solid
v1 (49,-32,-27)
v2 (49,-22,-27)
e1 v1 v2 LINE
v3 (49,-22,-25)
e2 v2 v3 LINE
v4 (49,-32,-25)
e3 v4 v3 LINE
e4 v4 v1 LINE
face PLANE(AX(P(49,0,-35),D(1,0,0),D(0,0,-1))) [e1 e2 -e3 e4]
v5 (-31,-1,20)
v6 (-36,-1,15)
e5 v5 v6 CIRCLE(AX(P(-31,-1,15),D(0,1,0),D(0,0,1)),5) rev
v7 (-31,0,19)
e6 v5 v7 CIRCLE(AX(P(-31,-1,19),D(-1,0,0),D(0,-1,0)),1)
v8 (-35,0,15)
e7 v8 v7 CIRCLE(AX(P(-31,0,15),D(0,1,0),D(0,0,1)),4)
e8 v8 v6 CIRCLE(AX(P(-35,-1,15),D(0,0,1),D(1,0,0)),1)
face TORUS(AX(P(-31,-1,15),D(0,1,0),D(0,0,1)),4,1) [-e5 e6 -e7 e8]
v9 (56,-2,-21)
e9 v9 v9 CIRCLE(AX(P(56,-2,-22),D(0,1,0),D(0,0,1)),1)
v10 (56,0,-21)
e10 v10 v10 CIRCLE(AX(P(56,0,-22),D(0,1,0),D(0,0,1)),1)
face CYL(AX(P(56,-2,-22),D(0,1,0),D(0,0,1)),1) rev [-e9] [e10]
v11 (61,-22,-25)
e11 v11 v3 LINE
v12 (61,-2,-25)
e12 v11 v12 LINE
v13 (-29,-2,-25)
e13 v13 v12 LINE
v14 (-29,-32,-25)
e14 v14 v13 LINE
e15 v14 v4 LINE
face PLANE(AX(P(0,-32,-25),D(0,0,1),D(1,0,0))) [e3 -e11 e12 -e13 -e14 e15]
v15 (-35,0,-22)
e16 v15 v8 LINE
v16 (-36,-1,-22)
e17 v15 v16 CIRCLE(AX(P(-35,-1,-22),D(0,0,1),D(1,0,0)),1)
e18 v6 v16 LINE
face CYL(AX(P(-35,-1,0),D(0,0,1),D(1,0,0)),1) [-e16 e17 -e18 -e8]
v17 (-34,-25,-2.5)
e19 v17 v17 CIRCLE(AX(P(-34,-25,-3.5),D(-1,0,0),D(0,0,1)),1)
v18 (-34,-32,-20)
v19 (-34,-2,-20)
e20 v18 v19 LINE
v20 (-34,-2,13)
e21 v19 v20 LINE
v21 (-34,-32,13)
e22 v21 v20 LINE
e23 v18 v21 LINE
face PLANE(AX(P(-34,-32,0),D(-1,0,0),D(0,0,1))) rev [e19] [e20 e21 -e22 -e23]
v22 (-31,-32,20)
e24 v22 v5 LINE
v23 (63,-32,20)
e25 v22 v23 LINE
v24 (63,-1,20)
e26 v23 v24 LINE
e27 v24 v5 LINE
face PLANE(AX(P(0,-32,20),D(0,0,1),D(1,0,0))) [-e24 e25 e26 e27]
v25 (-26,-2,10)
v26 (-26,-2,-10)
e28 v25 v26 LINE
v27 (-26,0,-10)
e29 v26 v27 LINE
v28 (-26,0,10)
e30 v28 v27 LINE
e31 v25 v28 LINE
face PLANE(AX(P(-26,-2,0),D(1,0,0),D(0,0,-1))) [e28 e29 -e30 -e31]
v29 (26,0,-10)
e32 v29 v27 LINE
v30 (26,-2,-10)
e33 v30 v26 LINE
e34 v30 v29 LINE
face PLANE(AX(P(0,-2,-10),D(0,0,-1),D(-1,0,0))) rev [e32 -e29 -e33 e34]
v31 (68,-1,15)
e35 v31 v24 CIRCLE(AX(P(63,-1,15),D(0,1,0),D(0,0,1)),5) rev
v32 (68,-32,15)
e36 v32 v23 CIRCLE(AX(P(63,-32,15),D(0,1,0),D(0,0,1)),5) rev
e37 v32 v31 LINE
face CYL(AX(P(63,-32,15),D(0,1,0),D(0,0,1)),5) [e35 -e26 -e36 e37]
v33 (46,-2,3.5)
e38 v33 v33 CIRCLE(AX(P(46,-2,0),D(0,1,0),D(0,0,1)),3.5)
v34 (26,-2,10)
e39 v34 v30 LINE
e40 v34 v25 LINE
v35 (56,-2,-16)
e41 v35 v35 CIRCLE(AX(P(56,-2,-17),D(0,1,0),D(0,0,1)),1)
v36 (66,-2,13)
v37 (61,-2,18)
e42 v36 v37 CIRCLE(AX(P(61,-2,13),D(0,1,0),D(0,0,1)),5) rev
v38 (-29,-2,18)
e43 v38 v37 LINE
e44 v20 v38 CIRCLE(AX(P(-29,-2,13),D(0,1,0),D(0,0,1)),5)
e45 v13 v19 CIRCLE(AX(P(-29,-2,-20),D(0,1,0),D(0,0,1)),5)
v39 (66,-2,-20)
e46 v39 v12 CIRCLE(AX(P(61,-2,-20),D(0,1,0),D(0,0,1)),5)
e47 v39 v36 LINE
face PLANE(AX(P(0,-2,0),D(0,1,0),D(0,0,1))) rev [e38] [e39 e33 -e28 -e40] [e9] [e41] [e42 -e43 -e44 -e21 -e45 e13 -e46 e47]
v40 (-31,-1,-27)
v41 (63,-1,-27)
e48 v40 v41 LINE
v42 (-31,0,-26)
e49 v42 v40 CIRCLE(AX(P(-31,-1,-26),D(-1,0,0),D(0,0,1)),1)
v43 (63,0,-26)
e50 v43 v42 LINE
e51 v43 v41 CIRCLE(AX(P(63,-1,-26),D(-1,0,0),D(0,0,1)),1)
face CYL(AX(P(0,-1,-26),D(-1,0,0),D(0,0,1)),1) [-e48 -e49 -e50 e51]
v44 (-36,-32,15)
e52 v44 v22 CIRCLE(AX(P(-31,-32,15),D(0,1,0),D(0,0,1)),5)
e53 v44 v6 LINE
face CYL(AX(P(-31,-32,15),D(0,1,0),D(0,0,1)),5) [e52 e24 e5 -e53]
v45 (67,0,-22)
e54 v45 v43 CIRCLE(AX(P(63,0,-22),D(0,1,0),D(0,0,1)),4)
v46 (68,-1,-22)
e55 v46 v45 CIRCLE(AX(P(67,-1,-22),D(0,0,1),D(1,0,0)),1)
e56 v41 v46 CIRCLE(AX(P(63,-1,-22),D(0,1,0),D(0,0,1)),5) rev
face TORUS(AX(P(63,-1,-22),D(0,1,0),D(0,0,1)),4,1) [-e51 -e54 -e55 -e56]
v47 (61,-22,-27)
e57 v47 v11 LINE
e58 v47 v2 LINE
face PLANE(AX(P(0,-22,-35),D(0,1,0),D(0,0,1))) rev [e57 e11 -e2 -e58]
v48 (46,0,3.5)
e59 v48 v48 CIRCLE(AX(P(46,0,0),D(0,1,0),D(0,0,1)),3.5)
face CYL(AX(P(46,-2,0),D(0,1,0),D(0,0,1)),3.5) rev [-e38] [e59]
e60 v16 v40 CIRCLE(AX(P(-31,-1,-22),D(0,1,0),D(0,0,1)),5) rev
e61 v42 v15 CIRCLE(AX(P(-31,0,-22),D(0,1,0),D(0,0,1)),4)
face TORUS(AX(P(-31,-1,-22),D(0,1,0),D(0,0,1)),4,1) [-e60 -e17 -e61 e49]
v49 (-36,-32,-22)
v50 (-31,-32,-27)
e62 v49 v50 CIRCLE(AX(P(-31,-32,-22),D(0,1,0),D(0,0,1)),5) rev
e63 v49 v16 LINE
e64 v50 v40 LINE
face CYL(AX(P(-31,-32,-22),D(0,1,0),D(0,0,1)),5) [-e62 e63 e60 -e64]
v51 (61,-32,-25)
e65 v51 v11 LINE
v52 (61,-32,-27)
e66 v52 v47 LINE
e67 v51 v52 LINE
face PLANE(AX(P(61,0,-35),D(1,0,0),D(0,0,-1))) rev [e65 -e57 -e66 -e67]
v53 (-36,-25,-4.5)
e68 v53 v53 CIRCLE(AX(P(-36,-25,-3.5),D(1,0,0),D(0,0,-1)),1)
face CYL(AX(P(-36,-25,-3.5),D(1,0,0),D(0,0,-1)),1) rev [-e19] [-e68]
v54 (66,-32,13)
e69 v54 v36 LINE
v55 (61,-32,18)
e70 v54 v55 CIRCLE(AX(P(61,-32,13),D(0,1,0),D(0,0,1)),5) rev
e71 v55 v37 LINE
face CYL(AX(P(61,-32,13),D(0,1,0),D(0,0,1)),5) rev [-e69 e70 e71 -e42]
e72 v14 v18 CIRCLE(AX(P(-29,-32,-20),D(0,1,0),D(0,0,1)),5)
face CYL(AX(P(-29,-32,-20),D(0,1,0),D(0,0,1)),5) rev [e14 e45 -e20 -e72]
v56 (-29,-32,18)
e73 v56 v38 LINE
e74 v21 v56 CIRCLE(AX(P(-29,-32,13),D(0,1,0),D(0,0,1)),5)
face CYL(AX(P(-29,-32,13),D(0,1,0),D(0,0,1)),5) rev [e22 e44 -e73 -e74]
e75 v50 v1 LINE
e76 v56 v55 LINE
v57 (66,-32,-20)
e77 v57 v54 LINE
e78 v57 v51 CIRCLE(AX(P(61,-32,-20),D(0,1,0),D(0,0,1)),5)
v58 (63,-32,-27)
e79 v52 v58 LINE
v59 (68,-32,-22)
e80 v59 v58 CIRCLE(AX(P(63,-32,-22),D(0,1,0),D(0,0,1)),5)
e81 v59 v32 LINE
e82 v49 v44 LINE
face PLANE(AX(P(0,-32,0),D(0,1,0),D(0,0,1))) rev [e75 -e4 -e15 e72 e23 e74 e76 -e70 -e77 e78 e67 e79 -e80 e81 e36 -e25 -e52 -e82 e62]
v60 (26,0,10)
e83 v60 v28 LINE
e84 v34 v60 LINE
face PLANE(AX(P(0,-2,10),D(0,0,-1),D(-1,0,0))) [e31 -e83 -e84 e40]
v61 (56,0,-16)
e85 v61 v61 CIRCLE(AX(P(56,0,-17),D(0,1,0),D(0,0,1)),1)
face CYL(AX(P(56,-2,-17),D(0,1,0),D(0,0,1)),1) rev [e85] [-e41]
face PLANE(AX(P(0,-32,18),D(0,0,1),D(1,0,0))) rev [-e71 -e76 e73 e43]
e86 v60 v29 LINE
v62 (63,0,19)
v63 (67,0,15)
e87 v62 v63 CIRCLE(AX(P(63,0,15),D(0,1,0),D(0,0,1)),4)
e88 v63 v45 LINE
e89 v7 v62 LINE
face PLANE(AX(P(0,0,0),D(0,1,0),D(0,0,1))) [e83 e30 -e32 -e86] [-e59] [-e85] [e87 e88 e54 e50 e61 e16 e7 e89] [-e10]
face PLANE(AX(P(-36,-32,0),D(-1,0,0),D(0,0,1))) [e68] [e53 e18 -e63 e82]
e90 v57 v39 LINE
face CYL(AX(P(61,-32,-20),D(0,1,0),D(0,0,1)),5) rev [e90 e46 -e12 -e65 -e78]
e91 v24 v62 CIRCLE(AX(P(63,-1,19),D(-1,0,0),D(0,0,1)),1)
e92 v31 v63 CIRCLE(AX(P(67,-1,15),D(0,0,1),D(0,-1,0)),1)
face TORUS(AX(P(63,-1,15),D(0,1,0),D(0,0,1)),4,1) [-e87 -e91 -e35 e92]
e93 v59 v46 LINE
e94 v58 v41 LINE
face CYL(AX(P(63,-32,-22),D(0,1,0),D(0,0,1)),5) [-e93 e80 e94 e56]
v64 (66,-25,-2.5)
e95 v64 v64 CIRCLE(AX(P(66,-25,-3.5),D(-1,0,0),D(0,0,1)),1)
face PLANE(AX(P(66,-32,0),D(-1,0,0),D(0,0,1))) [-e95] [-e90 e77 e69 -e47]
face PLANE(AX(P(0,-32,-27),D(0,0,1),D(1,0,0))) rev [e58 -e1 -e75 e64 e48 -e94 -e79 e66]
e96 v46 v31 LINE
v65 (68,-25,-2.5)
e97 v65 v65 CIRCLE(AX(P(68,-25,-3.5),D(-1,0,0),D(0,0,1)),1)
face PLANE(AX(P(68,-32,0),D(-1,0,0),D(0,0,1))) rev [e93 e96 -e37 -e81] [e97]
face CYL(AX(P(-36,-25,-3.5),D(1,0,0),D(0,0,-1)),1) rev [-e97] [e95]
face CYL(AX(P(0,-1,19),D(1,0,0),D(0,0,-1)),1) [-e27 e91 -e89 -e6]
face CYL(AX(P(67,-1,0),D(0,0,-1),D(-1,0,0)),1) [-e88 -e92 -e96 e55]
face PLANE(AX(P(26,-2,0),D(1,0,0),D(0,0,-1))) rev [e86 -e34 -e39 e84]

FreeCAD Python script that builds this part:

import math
import FreeCAD as App
import Part
import Sketcher
from FreeCAD import Vector


def edges_at(feature, points):
    """Names of the edges that pass closest to the given points."""
    edges = feature.Shape.Edges
    near = lambda p: min(range(len(edges)), key=lambda i: edges[i].distToShape(Part.Vertex(*p))[0])
    return sorted({f"Edge{near(p) + 1}" for p in points})

doc = App.newDocument("Part")
params = doc.addObject("Spreadsheet::Sheet", "Params")
for row, (alias, value) in enumerate([
    ("sketch1_diameter", "7 mm"),
    ("sketch1_diameter2", "2 mm"),
    ("sketch1_radius", "5 mm"),
    ("sketch1_width", "90 mm"),
    ("sketch1_width2", "52 mm"),
    ("pad1_length", "2 mm"),
    ("sketch2_radius", "5 mm"),
    ("sketch2_width", "94 mm"),
    ("sketch2_width2", "90 mm"),
    ("sketch2_height", "37 mm"),
    ("sketch2_height2", "33 mm"),
    ("pad2_length", "32 mm"),
    ("fillet_radius", "1 mm"),
    ("sketch3_diameter", "2 mm"),
    ("sketch4_width", "12 mm"),
    ("sketch4_height", "10 mm"),
    ("pocket2_length", "10 mm"),
], start=1):
    params.set(f"A{row}", alias)
    params.set(f"B{row}", "=" + value)
    params.setAlias(f"B{row}", alias)

body = doc.addObject("PartDesign::Body", "Body")

sketch1 = body.newObject("Sketcher::SketchObject", "Sketch")
sketch1.AttachmentSupport = (doc.getObject("XZ_Plane"), [""])
sketch1.MapMode = "FlatFace"
sketch1.addGeometry([
    Part.LineSegment(Vector(61, -25, 0), Vector(-29, -25, 0)),
    Part.ArcOfCircle(Part.Circle(Vector(-29, -20, 0), Vector(0, 0, 1), 5), math.radians(180), math.radians(270)),
    Part.LineSegment(Vector(-34, -20, 0), Vector(-34, 13, 0)),
    Part.ArcOfCircle(Part.Circle(Vector(-29, 13, 0), Vector(0, 0, 1), 5), math.radians(90), math.radians(180)),
    Part.LineSegment(Vector(-29, 18, 0), Vector(61, 18, 0)),
    Part.ArcOfCircle(Part.Circle(Vector(61, 13, 0), Vector(0, 0, 1), 5), math.radians(0), math.radians(90)),
    Part.LineSegment(Vector(66, 13, 0), Vector(66, -20, 0)),
    Part.ArcOfCircle(Part.Circle(Vector(61, -20, 0), Vector(0, 0, 1), 5), math.radians(-90), math.radians(0)),
    Part.Circle(Vector(46, 0, 0), Vector(0, 0, 1), 3.5),
    Part.LineSegment(Vector(-26, 10, 0), Vector(-26, -10, 0)),
    Part.LineSegment(Vector(-26, -10, 0), Vector(26, -10, 0)),
    Part.LineSegment(Vector(26, -10, 0), Vector(26, 10, 0)),
    Part.LineSegment(Vector(26, 10, 0), Vector(-26, 10, 0)),
    Part.Circle(Vector(56, -17, 0), Vector(0, 0, 1), 1),
    Part.Circle(Vector(56, -22, 0), Vector(0, 0, 1), 1),
], False)
sketch1.addConstraint([
    Sketcher.Constraint("Tangent", 0, 2, 1, 2),
    Sketcher.Constraint("Tangent", 1, 1, 2, 1),
    Sketcher.Constraint("Tangent", 2, 2, 3, 2),
    Sketcher.Constraint("Tangent", 3, 1, 4, 1),
    Sketcher.Constraint("Tangent", 4, 2, 5, 2),
    Sketcher.Constraint("Tangent", 5, 1, 6, 1),
    Sketcher.Constraint("Tangent", 6, 2, 7, 2),
    Sketcher.Constraint("Tangent", 7, 1, 0, 1),
    Sketcher.Constraint("Coincident", 9, 2, 10, 1),
    Sketcher.Constraint("Coincident", 10, 2, 11, 1),
    Sketcher.Constraint("Coincident", 11, 2, 12, 1),
    Sketcher.Constraint("Coincident", 12, 2, 9, 1),
    Sketcher.Constraint("Horizontal", 0),
    Sketcher.Constraint("Vertical", 2),
    Sketcher.Constraint("Horizontal", 4),
    Sketcher.Constraint("Vertical", 6),
    Sketcher.Constraint("Vertical", 9),
    Sketcher.Constraint("Horizontal", 10),
    Sketcher.Constraint("Vertical", 11),
    Sketcher.Constraint("Horizontal", 12),
    Sketcher.Constraint("Equal", 1, 3),
    Sketcher.Constraint("Equal", 3, 5),
    Sketcher.Constraint("Equal", 5, 7),
    Sketcher.Constraint("Equal", 13, 14),
    Sketcher.Constraint("Symmetric", 9, 2, 11, 2, -1, 1),
    Sketcher.Constraint("PointOnObject", 8, 3, -1),
    Sketcher.Constraint("Vertical", 13, 3, 14, 3),
    Sketcher.Constraint("Diameter", 8, 7.0),
    Sketcher.Constraint("Diameter", 13, 2.0),
    Sketcher.Constraint("Radius", 1, 5.0),
    Sketcher.Constraint("DistanceX", 0, 2, 0, 1, 90.0),
    Sketcher.Constraint("DistanceX", 10, 1, 10, 2, 52.0),
    Sketcher.Constraint("DistanceY", 2, 1, 2, 2, 33.0),
    Sketcher.Constraint("DistanceY", 9, 2, 9, 1, 20.0),
    Sketcher.Constraint("DistanceX", 1, 3, -1, 1, 29.0),
    Sketcher.Constraint("DistanceY", 1, 3, -1, 1, 20.0),
    Sketcher.Constraint("DistanceX", -1, 1, 8, 3, 46.0),
    Sketcher.Constraint("DistanceX", -1, 1, 13, 3, 56.0),
    Sketcher.Constraint("DistanceY", 13, 3, -1, 1, 17.0),
    Sketcher.Constraint("DistanceY", 14, 3, -1, 1, 22.0),
])
sketch1.setExpression("Constraints[27]", "Params.sketch1_diameter")
sketch1.setExpression("Constraints[28]", "Params.sketch1_diameter2")
sketch1.setExpression("Constraints[29]", "Params.sketch1_radius")
sketch1.setExpression("Constraints[30]", "Params.sketch1_width")
sketch1.setExpression("Constraints[31]", "Params.sketch1_width2")
pad1 = body.newObject("PartDesign::Pad", "Pad")
pad1.Profile = sketch1
pad1.setExpression("Length", "Params.pad1_length")

sketch2 = body.newObject("Sketcher::SketchObject", "Sketch001")
sketch2.AttachmentSupport = (doc.getObject("XZ_Plane"), [""])
sketch2.MapMode = "FlatFace"
sketch2.addGeometry([
    Part.LineSegment(Vector(63, -27, 0), Vector(-31, -27, 0)),
    Part.ArcOfCircle(Part.Circle(Vector(-31, -22, 0), Vector(0, 0, 1), 5), math.radians(180), math.radians(270)),
    Part.LineSegment(Vector(-36, -22, 0), Vector(-36, 15, 0)),
    Part.ArcOfCircle(Part.Circle(Vector(-31, 15, 0), Vector(0, 0, 1), 5), math.radians(90), math.radians(180)),
    Part.LineSegment(Vector(-31, 20, 0), Vector(63, 20, 0)),
    Part.ArcOfCircle(Part.Circle(Vector(63, 15, 0), Vector(0, 0, 1), 5), math.radians(0), math.radians(90)),
    Part.LineSegment(Vector(68, 15, 0), Vector(68, -22, 0)),
    Part.ArcOfCircle(Part.Circle(Vector(63, -22, 0), Vector(0, 0, 1), 5), math.radians(-90), math.radians(0)),
    Part.LineSegment(Vector(-29, -25, 0), Vector(61, -25, 0)),
    Part.ArcOfCircle(Part.Circle(Vector(61, -20, 0), Vector(0, 0, 1), 5), math.radians(-90), math.radians(0)),
    Part.LineSegment(Vector(66, -20, 0), Vector(66, 13, 0)),
    Part.ArcOfCircle(Part.Circle(Vector(61, 13, 0), Vector(0, 0, 1), 5), math.radians(0), math.radians(90)),
    Part.LineSegment(Vector(61, 18, 0), Vector(-29, 18, 0)),
    Part.ArcOfCircle(Part.Circle(Vector(-29, 13, 0), Vector(0, 0, 1), 5), math.radians(90), math.radians(180)),
    Part.LineSegment(Vector(-34, 13, 0), Vector(-34, -20, 0)),
    Part.ArcOfCircle(Part.Circle(Vector(-29, -20, 0), Vector(0, 0, 1), 5), math.radians(180), math.radians(270)),
], False)
sketch2.addConstraint([
    Sketcher.Constraint("Tangent", 0, 2, 1, 2),
    Sketcher.Constraint("Tangent", 1, 1, 2, 1),
    Sketcher.Constraint("Tangent", 2, 2, 3, 2),
    Sketcher.Constraint("Tangent", 3, 1, 4, 1),
    Sketcher.Constraint("Tangent", 4, 2, 5, 2),
    Sketcher.Constraint("Tangent", 5, 1, 6, 1),
    Sketcher.Constraint("Tangent", 6, 2, 7, 2),
    Sketcher.Constraint("Tangent", 7, 1, 0, 1),
    Sketcher.Constraint("Tangent", 8, 2, 9, 1),
    Sketcher.Constraint("Tangent", 9, 2, 10, 1),
    Sketcher.Constraint("Tangent", 10, 2, 11, 1),
    Sketcher.Constraint("Tangent", 11, 2, 12, 1),
    Sketcher.Constraint("Tangent", 12, 2, 13, 1),
    Sketcher.Constraint("Tangent", 13, 2, 14, 1),
    Sketcher.Constraint("Tangent", 14, 2, 15, 1),
    Sketcher.Constraint("Tangent", 15, 2, 8, 1),
    Sketcher.Constraint("Horizontal", 0),
    Sketcher.Constraint("Vertical", 2),
    Sketcher.Constraint("Horizontal", 4),
    Sketcher.Constraint("Vertical", 6),
    Sketcher.Constraint("Horizontal", 8),
    Sketcher.Constraint("Vertical", 10),
    Sketcher.Constraint("Horizontal", 12),
    Sketcher.Constraint("Vertical", 14),
    Sketcher.Constraint("Equal", 1, 3),
    Sketcher.Constraint("Equal", 3, 5),
    Sketcher.Constraint("Equal", 5, 7),
    Sketcher.Constraint("Equal", 7, 9),
    Sketcher.Constraint("Equal", 9, 11),
    Sketcher.Constraint("Equal", 11, 13),
    Sketcher.Constraint("Equal", 13, 15),
    Sketcher.Constraint("Radius", 1, 5.0),
    Sketcher.Constraint("DistanceX", 0, 2, 0, 1, 94.0),
    Sketcher.Constraint("DistanceX", 8, 1, 8, 2, 90.0),
    Sketcher.Constraint("DistanceY", 2, 1, 2, 2, 37.0),
    Sketcher.Constraint("DistanceY", 10, 1, 10, 2, 33.0),
    Sketcher.Constraint("DistanceX", 1, 3, -1, 1, 31.0),
    Sketcher.Constraint("DistanceY", 1, 3, -1, 1, 22.0),
    Sketcher.Constraint("DistanceX", -1, 1, 9, 3, 61.0),
    Sketcher.Constraint("DistanceY", 9, 3, -1, 1, 20.0),
])
sketch2.setExpression("Constraints[31]", "Params.sketch2_radius")
sketch2.setExpression("Constraints[32]", "Params.sketch2_width")
sketch2.setExpression("Constraints[33]", "Params.sketch2_width2")
sketch2.setExpression("Constraints[34]", "Params.sketch2_height")
sketch2.setExpression("Constraints[35]", "Params.sketch2_height2")
pad2 = body.newObject("PartDesign::Pad", "Pad001")
pad2.Profile = sketch2
pad2.setExpression("Length", "Params.pad2_length")
doc.recompute()

fillet = body.newObject("PartDesign::Fillet", "Fillet")
fillet.Base = (pad2, edges_at(pad2, [
    (-34.536, 0, -25.536),
    (16, 0, -27),
    (68, 0, -3.5),
    (66.536, 0, 18.536),
    (-36, 0, -3.5),
    (-34.536, 0, 18.536),
    (16, 0, 20),
    (66.536, 0, -25.536),
]))
fillet.setExpression("Radius", "Params.fillet_radius")

sketch3 = body.newObject("Sketcher::SketchObject", "Sketch002")
sketch3.AttachmentSupport = (doc.getObject("YZ_Plane"), [""])
sketch3.MapMode = "FlatFace"
sketch3.AttachmentOffset = App.Placement(Vector(0, 0, 68), App.Rotation())
sketch3.addGeometry(Part.Circle(Vector(-25, -3.5, 0), Vector(0, 0, 1), 1), False)
sketch3.addConstraint([
    Sketcher.Constraint("Diameter", 0, 2.0),
    Sketcher.Constraint("DistanceX", 0, 3, -1, 1, 25.0),
    Sketcher.Constraint("DistanceY", 0, 3, -1, 1, 3.5),
])
sketch3.setExpression("Constraints[0]", "Params.sketch3_diameter")
pocket1 = body.newObject("PartDesign::Pocket", "Pocket")
pocket1.Profile = sketch3
pocket1.Type = "ThroughAll"
pocket1.Midplane = True

sketch4 = body.newObject("Sketcher::SketchObject", "Sketch003")
sketch4.AttachmentSupport = (doc.getObject("XY_Plane"), [""])
sketch4.MapMode = "FlatFace"
sketch4.AttachmentOffset = App.Placement(Vector(0, 0, -25), App.Rotation())
sketch4.addGeometry([
    Part.LineSegment(Vector(49, -22, 0), Vector(49, -32, 0)),
    Part.LineSegment(Vector(49, -32, 0), Vector(61, -32, 0)),
    Part.LineSegment(Vector(61, -32, 0), Vector(61, -22, 0)),
    Part.LineSegment(Vector(61, -22, 0), Vector(49, -22, 0)),
], False)
sketch4.addConstraint([
    Sketcher.Constraint("Coincident", 0, 2, 1, 1),
    Sketcher.Constraint("Coincident", 1, 2, 2, 1),
    Sketcher.Constraint("Coincident", 2, 2, 3, 1),
    Sketcher.Constraint("Coincident", 3, 2, 0, 1),
    Sketcher.Constraint("Vertical", 0),
    Sketcher.Constraint("Horizontal", 1),
    Sketcher.Constraint("Vertical", 2),
    Sketcher.Constraint("Horizontal", 3),
    Sketcher.Constraint("DistanceX", 1, 1, 1, 2, 12.0),
    Sketcher.Constraint("DistanceY", 0, 2, 0, 1, 10.0),
    Sketcher.Constraint("DistanceX", -1, 1, 0, 2, 49.0),
    Sketcher.Constraint("DistanceY", 0, 2, -1, 1, 32.0),
])
sketch4.setExpression("Constraints[8]", "Params.sketch4_width")
sketch4.setExpression("Constraints[9]", "Params.sketch4_height")
pocket2 = body.newObject("PartDesign::Pocket", "Pocket001")
pocket2.Profile = sketch4
pocket2.setExpression("Length", "Params.pocket2_length")

doc.recompute()
